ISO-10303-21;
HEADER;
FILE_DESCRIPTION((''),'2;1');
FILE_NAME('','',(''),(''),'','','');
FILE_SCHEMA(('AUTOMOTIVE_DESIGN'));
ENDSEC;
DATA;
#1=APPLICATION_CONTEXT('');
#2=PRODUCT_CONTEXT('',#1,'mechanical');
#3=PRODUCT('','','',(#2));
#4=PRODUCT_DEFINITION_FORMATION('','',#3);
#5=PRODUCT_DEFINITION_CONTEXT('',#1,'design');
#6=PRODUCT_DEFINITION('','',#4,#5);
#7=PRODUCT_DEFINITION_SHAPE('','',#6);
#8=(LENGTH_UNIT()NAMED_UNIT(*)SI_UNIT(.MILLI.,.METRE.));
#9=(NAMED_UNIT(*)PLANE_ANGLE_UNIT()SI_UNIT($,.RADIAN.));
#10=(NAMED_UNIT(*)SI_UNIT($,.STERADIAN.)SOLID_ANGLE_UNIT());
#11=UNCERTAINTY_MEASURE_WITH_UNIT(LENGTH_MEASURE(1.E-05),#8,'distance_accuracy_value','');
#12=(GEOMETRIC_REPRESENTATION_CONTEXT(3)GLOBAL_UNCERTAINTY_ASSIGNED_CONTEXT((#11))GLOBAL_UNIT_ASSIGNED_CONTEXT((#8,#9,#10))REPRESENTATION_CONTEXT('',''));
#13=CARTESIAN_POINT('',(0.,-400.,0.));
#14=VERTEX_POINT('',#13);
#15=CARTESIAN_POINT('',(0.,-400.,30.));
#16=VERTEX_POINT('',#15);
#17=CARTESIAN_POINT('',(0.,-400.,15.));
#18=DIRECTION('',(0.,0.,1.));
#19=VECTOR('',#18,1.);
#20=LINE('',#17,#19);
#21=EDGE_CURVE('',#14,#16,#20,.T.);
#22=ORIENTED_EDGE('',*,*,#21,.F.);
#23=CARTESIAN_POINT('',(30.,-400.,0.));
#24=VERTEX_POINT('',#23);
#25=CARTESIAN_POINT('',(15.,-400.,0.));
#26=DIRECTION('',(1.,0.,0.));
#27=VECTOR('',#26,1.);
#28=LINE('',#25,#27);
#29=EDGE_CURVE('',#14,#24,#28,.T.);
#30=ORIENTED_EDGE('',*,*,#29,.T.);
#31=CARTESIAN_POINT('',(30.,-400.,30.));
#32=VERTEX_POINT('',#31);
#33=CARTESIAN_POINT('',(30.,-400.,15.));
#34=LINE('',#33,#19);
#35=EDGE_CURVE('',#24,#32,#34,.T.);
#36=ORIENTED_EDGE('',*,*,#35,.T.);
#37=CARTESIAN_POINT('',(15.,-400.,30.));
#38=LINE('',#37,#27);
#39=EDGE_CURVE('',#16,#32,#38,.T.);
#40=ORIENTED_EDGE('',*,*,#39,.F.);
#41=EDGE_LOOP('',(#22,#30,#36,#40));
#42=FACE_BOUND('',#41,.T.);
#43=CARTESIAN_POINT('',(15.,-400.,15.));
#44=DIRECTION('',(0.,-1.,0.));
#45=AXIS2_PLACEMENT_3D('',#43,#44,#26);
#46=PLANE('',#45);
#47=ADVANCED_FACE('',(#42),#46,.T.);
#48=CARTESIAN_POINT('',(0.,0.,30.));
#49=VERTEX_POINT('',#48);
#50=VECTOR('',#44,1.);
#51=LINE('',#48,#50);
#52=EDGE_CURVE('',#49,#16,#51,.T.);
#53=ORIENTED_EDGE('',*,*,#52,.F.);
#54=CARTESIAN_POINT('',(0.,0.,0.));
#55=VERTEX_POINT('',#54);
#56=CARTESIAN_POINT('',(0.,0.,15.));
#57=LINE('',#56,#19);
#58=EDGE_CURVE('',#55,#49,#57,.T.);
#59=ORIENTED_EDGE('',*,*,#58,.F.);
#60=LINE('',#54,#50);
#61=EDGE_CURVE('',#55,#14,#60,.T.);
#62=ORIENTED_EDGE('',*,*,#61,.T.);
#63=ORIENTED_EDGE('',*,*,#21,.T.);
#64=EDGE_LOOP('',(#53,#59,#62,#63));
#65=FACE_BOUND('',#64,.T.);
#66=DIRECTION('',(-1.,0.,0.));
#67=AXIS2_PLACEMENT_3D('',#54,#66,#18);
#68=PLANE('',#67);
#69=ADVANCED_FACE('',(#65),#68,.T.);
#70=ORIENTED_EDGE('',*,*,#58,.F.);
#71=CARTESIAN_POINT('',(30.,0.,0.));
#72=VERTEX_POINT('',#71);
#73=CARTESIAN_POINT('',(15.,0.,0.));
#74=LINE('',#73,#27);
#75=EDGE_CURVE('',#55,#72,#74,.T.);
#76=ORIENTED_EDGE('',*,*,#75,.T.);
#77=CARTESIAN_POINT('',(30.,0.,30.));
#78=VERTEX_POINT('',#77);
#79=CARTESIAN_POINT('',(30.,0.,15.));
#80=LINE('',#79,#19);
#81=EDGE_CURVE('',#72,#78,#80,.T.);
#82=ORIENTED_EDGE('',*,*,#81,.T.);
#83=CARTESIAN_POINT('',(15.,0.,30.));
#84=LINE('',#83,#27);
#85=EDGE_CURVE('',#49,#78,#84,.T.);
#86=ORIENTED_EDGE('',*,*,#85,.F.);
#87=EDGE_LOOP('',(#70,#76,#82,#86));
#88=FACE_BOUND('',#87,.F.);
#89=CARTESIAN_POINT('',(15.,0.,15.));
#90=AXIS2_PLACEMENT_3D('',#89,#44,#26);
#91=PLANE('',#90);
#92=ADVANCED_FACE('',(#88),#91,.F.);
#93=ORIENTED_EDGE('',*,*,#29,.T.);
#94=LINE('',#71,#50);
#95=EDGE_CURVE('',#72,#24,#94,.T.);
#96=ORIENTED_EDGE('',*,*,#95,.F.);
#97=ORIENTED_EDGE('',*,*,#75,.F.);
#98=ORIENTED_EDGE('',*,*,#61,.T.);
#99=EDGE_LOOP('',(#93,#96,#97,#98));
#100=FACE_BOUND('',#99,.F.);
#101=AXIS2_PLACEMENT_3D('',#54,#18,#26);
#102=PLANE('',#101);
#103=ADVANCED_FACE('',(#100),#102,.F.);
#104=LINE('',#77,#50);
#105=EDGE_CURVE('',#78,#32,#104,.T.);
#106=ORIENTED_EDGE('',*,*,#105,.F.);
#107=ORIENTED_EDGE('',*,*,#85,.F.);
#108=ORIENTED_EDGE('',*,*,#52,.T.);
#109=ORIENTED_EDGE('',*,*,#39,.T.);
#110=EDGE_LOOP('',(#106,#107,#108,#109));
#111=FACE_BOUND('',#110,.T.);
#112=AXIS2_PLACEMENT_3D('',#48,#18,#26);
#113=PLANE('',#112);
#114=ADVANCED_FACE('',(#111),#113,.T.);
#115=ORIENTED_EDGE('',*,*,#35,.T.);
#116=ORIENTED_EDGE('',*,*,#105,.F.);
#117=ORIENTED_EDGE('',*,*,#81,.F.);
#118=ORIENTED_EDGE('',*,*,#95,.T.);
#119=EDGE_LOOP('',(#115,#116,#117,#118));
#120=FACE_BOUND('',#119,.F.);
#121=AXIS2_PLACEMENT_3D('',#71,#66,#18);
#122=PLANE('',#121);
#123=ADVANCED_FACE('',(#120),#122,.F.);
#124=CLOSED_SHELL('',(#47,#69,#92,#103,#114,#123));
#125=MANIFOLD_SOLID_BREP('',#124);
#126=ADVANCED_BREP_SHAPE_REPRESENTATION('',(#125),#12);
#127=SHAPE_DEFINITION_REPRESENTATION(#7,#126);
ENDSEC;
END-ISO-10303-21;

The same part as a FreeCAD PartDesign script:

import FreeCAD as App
import Part
import Sketcher

V = App.Vector

doc = App.newDocument("Part")
body = doc.addObject("PartDesign::Body", "Body")

# Sketch on XZ plane
sketch1 = body.newObject("Sketcher::SketchObject", "Sketch")
sketch1.AttachmentSupport = (doc.getObject("XZ_Plane"), [""])
sketch1.MapMode = "FlatFace"
sketch1.addGeometry([
    Part.LineSegment(V(0, 30, 0), V(0, 0, 0)),
    Part.LineSegment(V(0, 0, 0), V(30, 0, 0)),
    Part.LineSegment(V(30, 0, 0), V(30, 30, 0)),
    Part.LineSegment(V(30, 30, 0), V(0, 30, 0)),
], False)
sketch1.addConstraint([
    Sketcher.Constraint("Coincident", 0, 2, 1, 1),
    Sketcher.Constraint("Coincident", 1, 2, 2, 1),
    Sketcher.Constraint("Coincident", 2, 2, 3, 1),
    Sketcher.Constraint("Coincident", 3, 2, 0, 1),
    Sketcher.Constraint("Vertical", 0),
    Sketcher.Constraint("Horizontal", 1),
    Sketcher.Constraint("Vertical", 2),
    Sketcher.Constraint("Horizontal", 3),
    Sketcher.Constraint("Coincident", 0, 2, -1, 1),
    Sketcher.Constraint("Equal", 3, 0),
    Sketcher.Constraint("DistanceX", 1, 1, 1, 2, 30.0),
])
pad1 = body.newObject("PartDesign::Pad", "Pad")
pad1.Profile = sketch1
pad1.Length = 400

doc.recompute()
